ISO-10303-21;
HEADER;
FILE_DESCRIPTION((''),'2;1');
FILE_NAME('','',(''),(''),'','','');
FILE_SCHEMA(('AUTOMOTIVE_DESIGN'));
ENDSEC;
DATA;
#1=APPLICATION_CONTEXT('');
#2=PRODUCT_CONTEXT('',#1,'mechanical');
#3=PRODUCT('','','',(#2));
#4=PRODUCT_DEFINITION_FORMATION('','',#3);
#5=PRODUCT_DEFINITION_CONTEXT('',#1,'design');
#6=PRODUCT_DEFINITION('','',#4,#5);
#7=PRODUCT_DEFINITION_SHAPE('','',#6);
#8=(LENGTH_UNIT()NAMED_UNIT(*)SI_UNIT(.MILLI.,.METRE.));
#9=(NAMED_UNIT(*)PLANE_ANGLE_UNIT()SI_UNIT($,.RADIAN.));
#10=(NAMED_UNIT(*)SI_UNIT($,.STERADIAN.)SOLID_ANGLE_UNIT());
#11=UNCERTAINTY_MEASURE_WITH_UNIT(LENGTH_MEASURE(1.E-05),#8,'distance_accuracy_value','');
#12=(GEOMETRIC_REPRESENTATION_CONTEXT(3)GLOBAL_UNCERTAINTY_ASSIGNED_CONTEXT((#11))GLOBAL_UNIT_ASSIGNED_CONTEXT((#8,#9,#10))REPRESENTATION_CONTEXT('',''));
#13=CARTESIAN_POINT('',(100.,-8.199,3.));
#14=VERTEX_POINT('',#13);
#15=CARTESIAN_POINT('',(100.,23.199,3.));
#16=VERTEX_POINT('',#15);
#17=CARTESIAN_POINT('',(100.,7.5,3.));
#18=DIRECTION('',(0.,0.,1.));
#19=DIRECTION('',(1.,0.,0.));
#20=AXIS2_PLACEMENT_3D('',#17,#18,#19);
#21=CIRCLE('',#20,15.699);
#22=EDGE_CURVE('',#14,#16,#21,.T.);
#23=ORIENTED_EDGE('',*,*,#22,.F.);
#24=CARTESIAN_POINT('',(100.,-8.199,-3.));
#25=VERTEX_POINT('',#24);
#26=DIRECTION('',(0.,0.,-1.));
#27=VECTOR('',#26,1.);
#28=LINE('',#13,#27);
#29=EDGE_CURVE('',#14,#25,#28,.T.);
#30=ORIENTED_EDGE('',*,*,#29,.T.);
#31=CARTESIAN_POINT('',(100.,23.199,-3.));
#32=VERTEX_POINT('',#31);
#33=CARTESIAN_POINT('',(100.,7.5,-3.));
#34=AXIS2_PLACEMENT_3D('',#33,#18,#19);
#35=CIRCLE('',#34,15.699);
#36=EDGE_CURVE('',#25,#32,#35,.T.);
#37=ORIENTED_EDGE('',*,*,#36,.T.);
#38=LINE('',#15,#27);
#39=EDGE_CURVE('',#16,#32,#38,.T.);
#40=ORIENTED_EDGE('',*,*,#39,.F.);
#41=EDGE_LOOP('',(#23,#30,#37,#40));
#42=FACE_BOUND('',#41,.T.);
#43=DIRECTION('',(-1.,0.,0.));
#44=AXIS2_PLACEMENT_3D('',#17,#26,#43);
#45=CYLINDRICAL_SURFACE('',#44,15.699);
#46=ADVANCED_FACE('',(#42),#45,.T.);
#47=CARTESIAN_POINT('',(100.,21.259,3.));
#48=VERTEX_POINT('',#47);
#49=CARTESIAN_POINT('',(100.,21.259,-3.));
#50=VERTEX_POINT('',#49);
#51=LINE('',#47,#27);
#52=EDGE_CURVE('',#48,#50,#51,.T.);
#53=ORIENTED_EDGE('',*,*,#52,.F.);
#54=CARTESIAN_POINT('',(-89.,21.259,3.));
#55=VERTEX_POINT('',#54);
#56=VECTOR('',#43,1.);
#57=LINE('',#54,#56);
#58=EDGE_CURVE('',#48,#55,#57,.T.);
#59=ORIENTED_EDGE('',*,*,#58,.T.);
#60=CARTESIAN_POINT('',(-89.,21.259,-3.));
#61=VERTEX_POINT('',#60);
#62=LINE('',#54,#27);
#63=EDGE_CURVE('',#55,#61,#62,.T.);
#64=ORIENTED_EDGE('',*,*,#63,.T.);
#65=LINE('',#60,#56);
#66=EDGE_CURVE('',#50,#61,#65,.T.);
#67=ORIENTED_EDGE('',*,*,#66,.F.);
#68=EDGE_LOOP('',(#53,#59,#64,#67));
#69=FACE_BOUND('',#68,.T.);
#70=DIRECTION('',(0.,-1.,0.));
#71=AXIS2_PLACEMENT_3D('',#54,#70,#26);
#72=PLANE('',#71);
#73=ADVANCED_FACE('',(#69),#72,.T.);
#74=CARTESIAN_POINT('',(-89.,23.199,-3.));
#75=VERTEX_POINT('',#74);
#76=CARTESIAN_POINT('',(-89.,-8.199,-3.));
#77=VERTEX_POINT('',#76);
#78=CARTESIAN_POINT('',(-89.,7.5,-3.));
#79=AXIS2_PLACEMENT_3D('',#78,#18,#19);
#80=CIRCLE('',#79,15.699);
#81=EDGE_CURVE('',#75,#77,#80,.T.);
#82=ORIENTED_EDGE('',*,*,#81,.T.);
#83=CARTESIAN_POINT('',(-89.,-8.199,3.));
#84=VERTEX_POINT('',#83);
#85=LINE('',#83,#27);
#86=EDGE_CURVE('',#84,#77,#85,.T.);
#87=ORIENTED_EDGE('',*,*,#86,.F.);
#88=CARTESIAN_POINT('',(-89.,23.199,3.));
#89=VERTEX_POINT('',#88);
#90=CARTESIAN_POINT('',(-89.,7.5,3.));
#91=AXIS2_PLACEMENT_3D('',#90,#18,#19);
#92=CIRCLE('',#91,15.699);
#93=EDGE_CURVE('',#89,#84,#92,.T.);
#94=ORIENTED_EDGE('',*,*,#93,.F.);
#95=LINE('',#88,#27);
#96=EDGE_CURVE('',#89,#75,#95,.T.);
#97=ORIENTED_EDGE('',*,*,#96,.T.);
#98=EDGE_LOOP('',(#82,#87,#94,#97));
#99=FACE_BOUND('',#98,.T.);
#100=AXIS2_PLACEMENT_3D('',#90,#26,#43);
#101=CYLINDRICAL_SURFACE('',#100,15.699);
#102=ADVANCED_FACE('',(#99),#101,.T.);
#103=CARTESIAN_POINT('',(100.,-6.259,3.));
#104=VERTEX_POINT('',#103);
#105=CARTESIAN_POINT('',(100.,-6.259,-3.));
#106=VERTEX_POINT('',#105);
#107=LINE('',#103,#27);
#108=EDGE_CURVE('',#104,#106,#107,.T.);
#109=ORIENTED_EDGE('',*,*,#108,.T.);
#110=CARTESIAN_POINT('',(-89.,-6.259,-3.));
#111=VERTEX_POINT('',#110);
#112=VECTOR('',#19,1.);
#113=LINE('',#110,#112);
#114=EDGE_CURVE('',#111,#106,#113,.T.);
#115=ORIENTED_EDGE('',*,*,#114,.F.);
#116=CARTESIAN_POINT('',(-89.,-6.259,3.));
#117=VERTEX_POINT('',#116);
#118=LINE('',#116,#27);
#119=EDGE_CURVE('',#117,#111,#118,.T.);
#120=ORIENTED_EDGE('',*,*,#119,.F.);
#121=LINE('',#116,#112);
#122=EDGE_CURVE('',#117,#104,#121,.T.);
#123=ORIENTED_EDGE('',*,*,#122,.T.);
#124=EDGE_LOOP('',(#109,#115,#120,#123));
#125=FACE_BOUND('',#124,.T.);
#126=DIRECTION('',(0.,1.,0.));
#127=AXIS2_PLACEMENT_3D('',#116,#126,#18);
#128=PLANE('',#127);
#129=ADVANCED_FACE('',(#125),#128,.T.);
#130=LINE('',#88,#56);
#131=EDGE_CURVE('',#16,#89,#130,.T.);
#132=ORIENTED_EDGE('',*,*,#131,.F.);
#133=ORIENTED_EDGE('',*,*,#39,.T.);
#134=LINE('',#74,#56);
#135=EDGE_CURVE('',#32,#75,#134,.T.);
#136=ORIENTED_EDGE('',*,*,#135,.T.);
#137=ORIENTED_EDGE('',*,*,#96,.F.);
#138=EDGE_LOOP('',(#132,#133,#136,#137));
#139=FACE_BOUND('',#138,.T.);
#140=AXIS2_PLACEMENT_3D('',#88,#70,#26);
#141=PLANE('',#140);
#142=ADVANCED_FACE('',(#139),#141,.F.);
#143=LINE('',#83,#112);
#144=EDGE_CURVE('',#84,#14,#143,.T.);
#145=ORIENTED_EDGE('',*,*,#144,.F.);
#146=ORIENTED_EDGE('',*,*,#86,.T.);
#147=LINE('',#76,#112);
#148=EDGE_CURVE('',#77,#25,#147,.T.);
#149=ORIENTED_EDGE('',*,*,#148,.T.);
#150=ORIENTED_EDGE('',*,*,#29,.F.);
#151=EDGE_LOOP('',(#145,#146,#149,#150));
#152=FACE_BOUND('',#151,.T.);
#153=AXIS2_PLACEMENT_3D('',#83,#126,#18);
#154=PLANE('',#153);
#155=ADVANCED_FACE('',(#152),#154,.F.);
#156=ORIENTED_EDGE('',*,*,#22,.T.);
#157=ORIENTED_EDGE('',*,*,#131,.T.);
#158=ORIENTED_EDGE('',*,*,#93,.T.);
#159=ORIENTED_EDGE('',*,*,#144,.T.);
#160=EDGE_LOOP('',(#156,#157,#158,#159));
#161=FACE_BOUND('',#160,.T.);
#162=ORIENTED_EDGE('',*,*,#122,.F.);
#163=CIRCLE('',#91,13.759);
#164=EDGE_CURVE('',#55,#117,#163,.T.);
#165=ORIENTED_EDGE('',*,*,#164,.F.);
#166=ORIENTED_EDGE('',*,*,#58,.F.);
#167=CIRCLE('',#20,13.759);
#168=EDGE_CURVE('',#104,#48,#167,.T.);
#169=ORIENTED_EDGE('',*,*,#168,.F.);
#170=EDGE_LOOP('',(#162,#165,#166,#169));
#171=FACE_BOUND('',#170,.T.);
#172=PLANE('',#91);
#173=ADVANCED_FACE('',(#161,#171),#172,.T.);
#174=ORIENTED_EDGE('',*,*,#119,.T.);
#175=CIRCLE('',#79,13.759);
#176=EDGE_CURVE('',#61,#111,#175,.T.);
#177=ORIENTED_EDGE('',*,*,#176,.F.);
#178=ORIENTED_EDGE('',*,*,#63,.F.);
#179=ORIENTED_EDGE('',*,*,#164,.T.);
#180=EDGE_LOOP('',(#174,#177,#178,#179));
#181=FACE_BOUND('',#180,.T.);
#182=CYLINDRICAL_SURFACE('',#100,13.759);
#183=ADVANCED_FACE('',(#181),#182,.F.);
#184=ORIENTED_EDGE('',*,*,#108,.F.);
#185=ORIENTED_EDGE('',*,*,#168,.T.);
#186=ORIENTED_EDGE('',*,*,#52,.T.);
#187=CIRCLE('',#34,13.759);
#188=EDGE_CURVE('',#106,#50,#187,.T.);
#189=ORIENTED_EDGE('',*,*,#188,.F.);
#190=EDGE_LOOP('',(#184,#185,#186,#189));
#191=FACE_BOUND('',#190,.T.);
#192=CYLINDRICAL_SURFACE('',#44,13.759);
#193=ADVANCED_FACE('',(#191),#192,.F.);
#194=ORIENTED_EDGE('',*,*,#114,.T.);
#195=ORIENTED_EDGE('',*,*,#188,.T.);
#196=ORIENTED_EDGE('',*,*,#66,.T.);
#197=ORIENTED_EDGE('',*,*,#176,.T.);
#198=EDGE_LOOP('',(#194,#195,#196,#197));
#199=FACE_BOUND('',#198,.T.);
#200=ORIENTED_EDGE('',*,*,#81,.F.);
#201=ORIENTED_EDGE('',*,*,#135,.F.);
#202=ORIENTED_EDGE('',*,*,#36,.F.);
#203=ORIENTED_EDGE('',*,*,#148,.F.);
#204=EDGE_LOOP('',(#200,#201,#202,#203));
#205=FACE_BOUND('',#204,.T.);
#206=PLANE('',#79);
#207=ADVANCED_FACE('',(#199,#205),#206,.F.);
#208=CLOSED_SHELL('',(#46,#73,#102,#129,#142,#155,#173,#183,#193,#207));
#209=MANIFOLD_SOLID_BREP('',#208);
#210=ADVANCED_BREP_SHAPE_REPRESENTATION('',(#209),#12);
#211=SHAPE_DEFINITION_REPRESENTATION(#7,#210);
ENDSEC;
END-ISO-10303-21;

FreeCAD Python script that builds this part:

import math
import FreeCAD as App
import Part
import Sketcher
Q = App.Units.Quantity

doc = App.newDocument("Part")
body = doc.addObject("PartDesign::Body", "Body")

# Sketch on XY plane
sketch1 = doc.addObject("Sketcher::SketchObject", "Sketch")
body.addObject(sketch1)
sketch1.AttachmentSupport = (doc.XY_Plane, [""])
sketch1.MapMode = "FlatFace"
sketch1.addGeometry(Part.LineSegment(App.Vector(100, 23, 0), App.Vector(-89, 23, 0)), False)
sketch1.addGeometry(Part.ArcOfCircle(Part.Circle(App.Vector(-89, 8, 0), App.Vector(0, 0, 1), 16), math.radians(90), math.radians(270)), False)
sketch1.addGeometry(Part.LineSegment(App.Vector(-89, -8, 0), App.Vector(100, -8, 0)), False)
sketch1.addGeometry(Part.ArcOfCircle(Part.Circle(App.Vector(100, 8, 0), App.Vector(0, 0, 1), 16), math.radians(-90), math.radians(90)), False)
sketch1.addGeometry(Part.LineSegment(App.Vector(-89, 21, 0), App.Vector(100, 21, 0)), False)
sketch1.addGeometry(Part.ArcOfCircle(Part.Circle(App.Vector(100, 8, 0), App.Vector(0, 0, 1), 14), math.radians(-90), math.radians(90)), False)
sketch1.addGeometry(Part.LineSegment(App.Vector(100, -6, 0), App.Vector(-89, -6, 0)), False)
sketch1.addGeometry(Part.ArcOfCircle(Part.Circle(App.Vector(-89, 8, 0), App.Vector(0, 0, 1), 14), math.radians(90), math.radians(270)), False)
sketch1.addConstraint(Sketcher.Constraint("Tangent", 0, 2, 1, 1))
sketch1.addConstraint(Sketcher.Constraint("Tangent", 1, 2, 2, 1))
sketch1.addConstraint(Sketcher.Constraint("Tangent", 2, 2, 3, 1))
sketch1.addConstraint(Sketcher.Constraint("Tangent", 3, 2, 0, 1))
sketch1.addConstraint(Sketcher.Constraint("Tangent", 4, 2, 5, 2))
sketch1.addConstraint(Sketcher.Constraint("Tangent", 5, 1, 6, 1))
sketch1.addConstraint(Sketcher.Constraint("Tangent", 6, 2, 7, 2))
sketch1.addConstraint(Sketcher.Constraint("Tangent", 7, 1, 4, 1))
sketch1.addConstraint(Sketcher.Constraint("Horizontal", 0))
sketch1.addConstraint(Sketcher.Constraint("Horizontal", 2))
sketch1.addConstraint(Sketcher.Constraint("Horizontal", 4))
sketch1.addConstraint(Sketcher.Constraint("Horizontal", 6))
sketch1.addConstraint(Sketcher.Constraint("Coincident", 5, 3, 3, 3))
sketch1.addConstraint(Sketcher.Constraint("Vertical", 7, 3, 0, 2))
sketch1.addConstraint(Sketcher.Constraint("DistanceX", 0, 2, 0, 1, Q("189 mm")))
sketch1.addConstraint(Sketcher.Constraint("DistanceX", 1, 3, -1, 1, Q("89 mm")))
sketch1.addConstraint(Sketcher.Constraint("Radius", 1, Q("15.699 mm")))
sketch1.addConstraint(Sketcher.Constraint("Radius", 5, Q("13.759 mm")))
sketch1.addConstraint(Sketcher.Constraint("DistanceY", -1, 1, 1, 3, Q("7.5 mm")))
pad1 = doc.addObject("PartDesign::Pad", "Pad")
body.addObject(pad1)
pad1.Profile = sketch1
pad1.Length = 6
pad1.Midplane = True

doc.recompute()
